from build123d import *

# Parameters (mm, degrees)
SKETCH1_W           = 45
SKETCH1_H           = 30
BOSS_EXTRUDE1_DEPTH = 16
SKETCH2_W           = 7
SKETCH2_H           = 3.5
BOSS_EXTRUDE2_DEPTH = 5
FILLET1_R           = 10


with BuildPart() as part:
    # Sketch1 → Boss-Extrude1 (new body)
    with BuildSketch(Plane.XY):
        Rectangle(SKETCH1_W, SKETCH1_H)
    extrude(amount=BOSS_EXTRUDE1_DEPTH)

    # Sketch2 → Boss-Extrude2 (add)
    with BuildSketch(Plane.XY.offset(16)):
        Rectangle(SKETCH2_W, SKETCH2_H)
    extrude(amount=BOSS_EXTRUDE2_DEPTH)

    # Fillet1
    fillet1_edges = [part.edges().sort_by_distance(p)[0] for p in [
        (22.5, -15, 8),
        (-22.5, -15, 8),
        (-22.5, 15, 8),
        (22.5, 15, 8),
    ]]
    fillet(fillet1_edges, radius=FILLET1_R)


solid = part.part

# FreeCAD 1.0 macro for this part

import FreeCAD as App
import Part
import Sketcher


def edges_at(feature, points):
    """Names of the edges that pass closest to the given points."""
    edges = feature.Shape.Edges
    near = lambda p: min(range(len(edges)), key=lambda i: edges[i].distToShape(Part.Vertex(*p))[0])
    return sorted({f"Edge{near(p) + 1}" for p in points})

doc = App.newDocument("Part")
params = doc.addObject("Spreadsheet::Sheet", "Params")
for row, (alias, value) in enumerate([
    ("sketch1_width", "45 mm"),
    ("sketch1_height", "30 mm"),
    ("pad1_length", "16 mm"),
    ("sketch2_width", "7 mm"),
    ("sketch2_height", "3.5 mm"),
    ("pad2_length", "5 mm"),
    ("fillet_radius", "10 mm"),
], start=1):
    params.set(f"A{row}", alias)
    params.set(f"B{row}", "=" + value)
    params.setAlias(f"B{row}", alias)

body = doc.addObject("PartDesign::Body", "Body")

# Sketch on XY plane
sketch1 = doc.addObject("Sketcher::SketchObject", "Sketch")
body.addObject(sketch1)
sketch1.AttachmentSupport = (doc.XY_Plane, [""])
sketch1.MapMode = "FlatFace"
sketch1.addGeometry(Part.LineSegment(App.Vector(-22, 15, 0), App.Vector(-22, -15, 0)), False)
sketch1.addGeometry(Part.LineSegment(App.Vector(-22, -15, 0), App.Vector(22, -15, 0)), False)
sketch1.addGeometry(Part.LineSegment(App.Vector(22, -15, 0), App.Vector(22, 15, 0)), False)
sketch1.addGeometry(Part.LineSegment(App.Vector(22, 15, 0), App.Vector(-22, 15, 0)), False)
sketch1.addConstraint(Sketcher.Constraint("Coincident", 0, 2, 1, 1))
sketch1.addConstraint(Sketcher.Constraint("Coincident", 1, 2, 2, 1))
sketch1.addConstraint(Sketcher.Constraint("Coincident", 2, 2, 3, 1))
sketch1.addConstraint(Sketcher.Constraint("Coincident", 3, 2, 0, 1))
sketch1.addConstraint(Sketcher.Constraint("Vertical", 0))
sketch1.addConstraint(Sketcher.Constraint("Horizontal", 1))
sketch1.addConstraint(Sketcher.Constraint("Vertical", 2))
sketch1.addConstraint(Sketcher.Constraint("Horizontal", 3))
sketch1.addConstraint(Sketcher.Constraint("Symmetric", 0, 2, 2, 2, -1, 1))
sketch1.addConstraint(Sketcher.Constraint("DistanceX", 1, 1, 1, 2, 45.0))
sketch1.addConstraint(Sketcher.Constraint("DistanceY", 0, 2, 0, 1, 30.0))
sketch1.setExpression("Constraints[9]", "Params.sketch1_width")
sketch1.setExpression("Constraints[10]", "Params.sketch1_height")
pad1 = doc.addObject("PartDesign::Pad", "Pad")
body.addObject(pad1)
pad1.Profile = sketch1
pad1.setExpression("Length", "Params.pad1_length")

# Sketch on XY plane
sketch2 = doc.addObject("Sketcher::SketchObject", "Sketch001")
body.addObject(sketch2)
sketch2.AttachmentSupport = (doc.XY_Plane, [""])
sketch2.MapMode = "FlatFace"
sketch2.AttachmentOffset = App.Placement(App.Vector(0, 0, 16), App.Rotation())
sketch2.addGeometry(Part.LineSegment(App.Vector(-3.5, 1.8, 0), App.Vector(-3.5, -1.8, 0)), False)
sketch2.addGeometry(Part.LineSegment(App.Vector(-3.5, -1.8, 0), App.Vector(3.5, -1.8, 0)), False)
sketch2.addGeometry(Part.LineSegment(App.Vector(3.5, -1.8, 0), App.Vector(3.5, 1.8, 0)), False)
sketch2.addGeometry(Part.LineSegment(App.Vector(3.5, 1.8, 0), App.Vector(-3.5, 1.8, 0)), False)
sketch2.addConstraint(Sketcher.Constraint("Coincident", 0, 2, 1, 1))
sketch2.addConstraint(Sketcher.Constraint("Coincident", 1, 2, 2, 1))
sketch2.addConstraint(Sketcher.Constraint("Coincident", 2, 2, 3, 1))
sketch2.addConstraint(Sketcher.Constraint("Coincident", 3, 2, 0, 1))
sketch2.addConstraint(Sketcher.Constraint("Vertical", 0))
sketch2.addConstraint(Sketcher.Constraint("Horizontal", 1))
sketch2.addConstraint(Sketcher.Constraint("Vertical", 2))
sketch2.addConstraint(Sketcher.Constraint("Horizontal", 3))
sketch2.addConstraint(Sketcher.Constraint("Symmetric", 0, 2, 2, 2, -1, 1))
sketch2.addConstraint(Sketcher.Constraint("DistanceX", 1, 1, 1, 2, 7.0))
sketch2.addConstraint(Sketcher.Constraint("DistanceY", 0, 2, 0, 1, 3.5))
sketch2.setExpression("Constraints[9]", "Params.sketch2_width")
sketch2.setExpression("Constraints[10]", "Params.sketch2_height")
pad2 = doc.addObject("PartDesign::Pad", "Pad001")
body.addObject(pad2)
pad2.Profile = sketch2
pad2.setExpression("Length", "Params.pad2_length")
doc.recompute()

fillet = doc.addObject("PartDesign::Fillet", "Fillet")
body.addObject(fillet)
fillet.Base = (pad2, edges_at(pad2, [
    (22.5, -15, 8),
    (-22.5, -15, 8),
    (-22.5, 15, 8),
    (22.5, 15, 8),
]))
fillet.setExpression("Radius", "Params.fillet_radius")

doc.recompute()
